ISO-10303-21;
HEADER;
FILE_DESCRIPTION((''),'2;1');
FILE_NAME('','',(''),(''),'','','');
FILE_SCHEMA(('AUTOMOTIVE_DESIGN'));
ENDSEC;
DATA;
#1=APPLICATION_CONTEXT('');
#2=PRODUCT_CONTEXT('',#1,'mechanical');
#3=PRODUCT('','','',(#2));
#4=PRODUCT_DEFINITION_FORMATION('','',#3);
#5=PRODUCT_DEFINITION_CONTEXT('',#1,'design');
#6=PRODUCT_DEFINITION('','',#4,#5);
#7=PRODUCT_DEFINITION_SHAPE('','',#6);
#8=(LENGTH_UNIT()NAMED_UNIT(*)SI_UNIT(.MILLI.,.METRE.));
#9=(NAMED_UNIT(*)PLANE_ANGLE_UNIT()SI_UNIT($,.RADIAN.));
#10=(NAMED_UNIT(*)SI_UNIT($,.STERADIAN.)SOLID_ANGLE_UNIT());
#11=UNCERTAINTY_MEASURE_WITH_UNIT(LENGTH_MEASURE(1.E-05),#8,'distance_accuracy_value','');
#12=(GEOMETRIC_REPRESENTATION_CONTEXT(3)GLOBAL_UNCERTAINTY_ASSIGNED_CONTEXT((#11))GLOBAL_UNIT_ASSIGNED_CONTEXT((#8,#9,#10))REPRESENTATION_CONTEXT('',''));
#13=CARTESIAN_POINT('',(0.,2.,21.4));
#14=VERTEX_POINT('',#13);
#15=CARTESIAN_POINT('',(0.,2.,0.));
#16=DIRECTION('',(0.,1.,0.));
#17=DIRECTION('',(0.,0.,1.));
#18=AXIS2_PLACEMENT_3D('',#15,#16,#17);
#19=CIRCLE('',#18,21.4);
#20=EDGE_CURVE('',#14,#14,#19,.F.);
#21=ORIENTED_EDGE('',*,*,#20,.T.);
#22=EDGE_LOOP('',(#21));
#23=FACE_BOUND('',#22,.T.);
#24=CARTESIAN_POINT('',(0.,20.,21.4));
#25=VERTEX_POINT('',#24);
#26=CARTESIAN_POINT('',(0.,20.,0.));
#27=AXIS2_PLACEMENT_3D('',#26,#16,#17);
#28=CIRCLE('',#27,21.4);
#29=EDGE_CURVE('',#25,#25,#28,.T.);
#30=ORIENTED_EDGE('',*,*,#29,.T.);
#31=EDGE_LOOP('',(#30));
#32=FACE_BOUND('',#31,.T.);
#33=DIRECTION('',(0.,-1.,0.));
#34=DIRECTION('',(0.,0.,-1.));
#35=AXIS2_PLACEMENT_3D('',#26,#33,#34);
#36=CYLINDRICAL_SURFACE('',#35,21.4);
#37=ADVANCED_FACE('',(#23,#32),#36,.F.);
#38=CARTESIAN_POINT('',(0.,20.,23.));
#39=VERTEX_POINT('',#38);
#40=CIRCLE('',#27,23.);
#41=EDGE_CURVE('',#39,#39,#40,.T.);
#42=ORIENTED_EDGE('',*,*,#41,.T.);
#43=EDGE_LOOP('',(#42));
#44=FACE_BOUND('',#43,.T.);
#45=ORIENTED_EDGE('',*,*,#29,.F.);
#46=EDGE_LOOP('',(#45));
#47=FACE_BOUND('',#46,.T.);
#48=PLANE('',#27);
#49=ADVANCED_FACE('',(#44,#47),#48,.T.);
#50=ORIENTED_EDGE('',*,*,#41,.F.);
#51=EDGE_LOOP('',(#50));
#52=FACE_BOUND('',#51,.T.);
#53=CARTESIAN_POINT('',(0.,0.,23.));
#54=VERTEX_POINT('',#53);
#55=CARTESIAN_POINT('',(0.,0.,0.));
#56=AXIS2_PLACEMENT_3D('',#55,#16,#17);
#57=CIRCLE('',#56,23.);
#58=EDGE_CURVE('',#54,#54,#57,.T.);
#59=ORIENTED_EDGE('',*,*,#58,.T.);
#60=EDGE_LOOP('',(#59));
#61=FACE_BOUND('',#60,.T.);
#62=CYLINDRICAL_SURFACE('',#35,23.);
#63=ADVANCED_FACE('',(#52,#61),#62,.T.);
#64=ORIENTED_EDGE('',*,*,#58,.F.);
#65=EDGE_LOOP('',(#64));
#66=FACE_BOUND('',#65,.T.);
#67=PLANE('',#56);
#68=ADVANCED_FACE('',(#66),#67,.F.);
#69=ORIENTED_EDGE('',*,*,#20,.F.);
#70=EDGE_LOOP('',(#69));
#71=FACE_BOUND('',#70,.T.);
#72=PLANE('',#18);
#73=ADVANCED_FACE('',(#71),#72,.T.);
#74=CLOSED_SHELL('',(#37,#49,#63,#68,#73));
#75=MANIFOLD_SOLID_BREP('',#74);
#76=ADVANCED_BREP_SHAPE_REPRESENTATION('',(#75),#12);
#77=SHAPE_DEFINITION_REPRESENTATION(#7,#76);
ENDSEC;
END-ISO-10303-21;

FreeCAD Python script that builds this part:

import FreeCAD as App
import Part
import Sketcher
from FreeCAD import Vector

doc = App.newDocument("Part")
body = doc.addObject("PartDesign::Body", "Body")

# Sketch on XZ plane
sketch1 = body.newObject("Sketcher::SketchObject", "Sketch")
sketch1.AttachmentSupport = (doc.getObject("XZ_Plane"), [""])
sketch1.MapMode = "FlatFace"
sketch1.addGeometry(Part.Circle(Vector(0, 0, 0), Vector(0, 0, 1), 21), False)
sketch1.addConstraint([
    Sketcher.Constraint("Coincident", 0, 3, -1, 1),
    Sketcher.Constraint("Diameter", 0, 42.8),
])
pad1 = body.newObject("PartDesign::Pad", "Pad")
pad1.Profile = sketch1
pad1.Length = 2
pad1.Reversed = True

# Sketch on XZ plane
sketch2 = body.newObject("Sketcher::SketchObject", "Sketch001")
sketch2.AttachmentSupport = (doc.getObject("XZ_Plane"), [""])
sketch2.MapMode = "FlatFace"
sketch2.addGeometry([
    Part.Circle(Vector(0, 0, 0), Vector(0, 0, 1), 23),
    Part.Circle(Vector(0, 0, 0), Vector(0, 0, 1), 21),
], False)
sketch2.addConstraint([
    Sketcher.Constraint("Coincident", 0, 3, -1, 1),
    Sketcher.Constraint("Coincident", 1, 3, -1, 1),
    Sketcher.Constraint("Diameter", 0, 46.0),
    Sketcher.Constraint("Diameter", 1, 42.8),
])
pad2 = body.newObject("PartDesign::Pad", "Pad001")
pad2.Profile = sketch2
pad2.Length = 20
pad2.Reversed = True

doc.recompute()
